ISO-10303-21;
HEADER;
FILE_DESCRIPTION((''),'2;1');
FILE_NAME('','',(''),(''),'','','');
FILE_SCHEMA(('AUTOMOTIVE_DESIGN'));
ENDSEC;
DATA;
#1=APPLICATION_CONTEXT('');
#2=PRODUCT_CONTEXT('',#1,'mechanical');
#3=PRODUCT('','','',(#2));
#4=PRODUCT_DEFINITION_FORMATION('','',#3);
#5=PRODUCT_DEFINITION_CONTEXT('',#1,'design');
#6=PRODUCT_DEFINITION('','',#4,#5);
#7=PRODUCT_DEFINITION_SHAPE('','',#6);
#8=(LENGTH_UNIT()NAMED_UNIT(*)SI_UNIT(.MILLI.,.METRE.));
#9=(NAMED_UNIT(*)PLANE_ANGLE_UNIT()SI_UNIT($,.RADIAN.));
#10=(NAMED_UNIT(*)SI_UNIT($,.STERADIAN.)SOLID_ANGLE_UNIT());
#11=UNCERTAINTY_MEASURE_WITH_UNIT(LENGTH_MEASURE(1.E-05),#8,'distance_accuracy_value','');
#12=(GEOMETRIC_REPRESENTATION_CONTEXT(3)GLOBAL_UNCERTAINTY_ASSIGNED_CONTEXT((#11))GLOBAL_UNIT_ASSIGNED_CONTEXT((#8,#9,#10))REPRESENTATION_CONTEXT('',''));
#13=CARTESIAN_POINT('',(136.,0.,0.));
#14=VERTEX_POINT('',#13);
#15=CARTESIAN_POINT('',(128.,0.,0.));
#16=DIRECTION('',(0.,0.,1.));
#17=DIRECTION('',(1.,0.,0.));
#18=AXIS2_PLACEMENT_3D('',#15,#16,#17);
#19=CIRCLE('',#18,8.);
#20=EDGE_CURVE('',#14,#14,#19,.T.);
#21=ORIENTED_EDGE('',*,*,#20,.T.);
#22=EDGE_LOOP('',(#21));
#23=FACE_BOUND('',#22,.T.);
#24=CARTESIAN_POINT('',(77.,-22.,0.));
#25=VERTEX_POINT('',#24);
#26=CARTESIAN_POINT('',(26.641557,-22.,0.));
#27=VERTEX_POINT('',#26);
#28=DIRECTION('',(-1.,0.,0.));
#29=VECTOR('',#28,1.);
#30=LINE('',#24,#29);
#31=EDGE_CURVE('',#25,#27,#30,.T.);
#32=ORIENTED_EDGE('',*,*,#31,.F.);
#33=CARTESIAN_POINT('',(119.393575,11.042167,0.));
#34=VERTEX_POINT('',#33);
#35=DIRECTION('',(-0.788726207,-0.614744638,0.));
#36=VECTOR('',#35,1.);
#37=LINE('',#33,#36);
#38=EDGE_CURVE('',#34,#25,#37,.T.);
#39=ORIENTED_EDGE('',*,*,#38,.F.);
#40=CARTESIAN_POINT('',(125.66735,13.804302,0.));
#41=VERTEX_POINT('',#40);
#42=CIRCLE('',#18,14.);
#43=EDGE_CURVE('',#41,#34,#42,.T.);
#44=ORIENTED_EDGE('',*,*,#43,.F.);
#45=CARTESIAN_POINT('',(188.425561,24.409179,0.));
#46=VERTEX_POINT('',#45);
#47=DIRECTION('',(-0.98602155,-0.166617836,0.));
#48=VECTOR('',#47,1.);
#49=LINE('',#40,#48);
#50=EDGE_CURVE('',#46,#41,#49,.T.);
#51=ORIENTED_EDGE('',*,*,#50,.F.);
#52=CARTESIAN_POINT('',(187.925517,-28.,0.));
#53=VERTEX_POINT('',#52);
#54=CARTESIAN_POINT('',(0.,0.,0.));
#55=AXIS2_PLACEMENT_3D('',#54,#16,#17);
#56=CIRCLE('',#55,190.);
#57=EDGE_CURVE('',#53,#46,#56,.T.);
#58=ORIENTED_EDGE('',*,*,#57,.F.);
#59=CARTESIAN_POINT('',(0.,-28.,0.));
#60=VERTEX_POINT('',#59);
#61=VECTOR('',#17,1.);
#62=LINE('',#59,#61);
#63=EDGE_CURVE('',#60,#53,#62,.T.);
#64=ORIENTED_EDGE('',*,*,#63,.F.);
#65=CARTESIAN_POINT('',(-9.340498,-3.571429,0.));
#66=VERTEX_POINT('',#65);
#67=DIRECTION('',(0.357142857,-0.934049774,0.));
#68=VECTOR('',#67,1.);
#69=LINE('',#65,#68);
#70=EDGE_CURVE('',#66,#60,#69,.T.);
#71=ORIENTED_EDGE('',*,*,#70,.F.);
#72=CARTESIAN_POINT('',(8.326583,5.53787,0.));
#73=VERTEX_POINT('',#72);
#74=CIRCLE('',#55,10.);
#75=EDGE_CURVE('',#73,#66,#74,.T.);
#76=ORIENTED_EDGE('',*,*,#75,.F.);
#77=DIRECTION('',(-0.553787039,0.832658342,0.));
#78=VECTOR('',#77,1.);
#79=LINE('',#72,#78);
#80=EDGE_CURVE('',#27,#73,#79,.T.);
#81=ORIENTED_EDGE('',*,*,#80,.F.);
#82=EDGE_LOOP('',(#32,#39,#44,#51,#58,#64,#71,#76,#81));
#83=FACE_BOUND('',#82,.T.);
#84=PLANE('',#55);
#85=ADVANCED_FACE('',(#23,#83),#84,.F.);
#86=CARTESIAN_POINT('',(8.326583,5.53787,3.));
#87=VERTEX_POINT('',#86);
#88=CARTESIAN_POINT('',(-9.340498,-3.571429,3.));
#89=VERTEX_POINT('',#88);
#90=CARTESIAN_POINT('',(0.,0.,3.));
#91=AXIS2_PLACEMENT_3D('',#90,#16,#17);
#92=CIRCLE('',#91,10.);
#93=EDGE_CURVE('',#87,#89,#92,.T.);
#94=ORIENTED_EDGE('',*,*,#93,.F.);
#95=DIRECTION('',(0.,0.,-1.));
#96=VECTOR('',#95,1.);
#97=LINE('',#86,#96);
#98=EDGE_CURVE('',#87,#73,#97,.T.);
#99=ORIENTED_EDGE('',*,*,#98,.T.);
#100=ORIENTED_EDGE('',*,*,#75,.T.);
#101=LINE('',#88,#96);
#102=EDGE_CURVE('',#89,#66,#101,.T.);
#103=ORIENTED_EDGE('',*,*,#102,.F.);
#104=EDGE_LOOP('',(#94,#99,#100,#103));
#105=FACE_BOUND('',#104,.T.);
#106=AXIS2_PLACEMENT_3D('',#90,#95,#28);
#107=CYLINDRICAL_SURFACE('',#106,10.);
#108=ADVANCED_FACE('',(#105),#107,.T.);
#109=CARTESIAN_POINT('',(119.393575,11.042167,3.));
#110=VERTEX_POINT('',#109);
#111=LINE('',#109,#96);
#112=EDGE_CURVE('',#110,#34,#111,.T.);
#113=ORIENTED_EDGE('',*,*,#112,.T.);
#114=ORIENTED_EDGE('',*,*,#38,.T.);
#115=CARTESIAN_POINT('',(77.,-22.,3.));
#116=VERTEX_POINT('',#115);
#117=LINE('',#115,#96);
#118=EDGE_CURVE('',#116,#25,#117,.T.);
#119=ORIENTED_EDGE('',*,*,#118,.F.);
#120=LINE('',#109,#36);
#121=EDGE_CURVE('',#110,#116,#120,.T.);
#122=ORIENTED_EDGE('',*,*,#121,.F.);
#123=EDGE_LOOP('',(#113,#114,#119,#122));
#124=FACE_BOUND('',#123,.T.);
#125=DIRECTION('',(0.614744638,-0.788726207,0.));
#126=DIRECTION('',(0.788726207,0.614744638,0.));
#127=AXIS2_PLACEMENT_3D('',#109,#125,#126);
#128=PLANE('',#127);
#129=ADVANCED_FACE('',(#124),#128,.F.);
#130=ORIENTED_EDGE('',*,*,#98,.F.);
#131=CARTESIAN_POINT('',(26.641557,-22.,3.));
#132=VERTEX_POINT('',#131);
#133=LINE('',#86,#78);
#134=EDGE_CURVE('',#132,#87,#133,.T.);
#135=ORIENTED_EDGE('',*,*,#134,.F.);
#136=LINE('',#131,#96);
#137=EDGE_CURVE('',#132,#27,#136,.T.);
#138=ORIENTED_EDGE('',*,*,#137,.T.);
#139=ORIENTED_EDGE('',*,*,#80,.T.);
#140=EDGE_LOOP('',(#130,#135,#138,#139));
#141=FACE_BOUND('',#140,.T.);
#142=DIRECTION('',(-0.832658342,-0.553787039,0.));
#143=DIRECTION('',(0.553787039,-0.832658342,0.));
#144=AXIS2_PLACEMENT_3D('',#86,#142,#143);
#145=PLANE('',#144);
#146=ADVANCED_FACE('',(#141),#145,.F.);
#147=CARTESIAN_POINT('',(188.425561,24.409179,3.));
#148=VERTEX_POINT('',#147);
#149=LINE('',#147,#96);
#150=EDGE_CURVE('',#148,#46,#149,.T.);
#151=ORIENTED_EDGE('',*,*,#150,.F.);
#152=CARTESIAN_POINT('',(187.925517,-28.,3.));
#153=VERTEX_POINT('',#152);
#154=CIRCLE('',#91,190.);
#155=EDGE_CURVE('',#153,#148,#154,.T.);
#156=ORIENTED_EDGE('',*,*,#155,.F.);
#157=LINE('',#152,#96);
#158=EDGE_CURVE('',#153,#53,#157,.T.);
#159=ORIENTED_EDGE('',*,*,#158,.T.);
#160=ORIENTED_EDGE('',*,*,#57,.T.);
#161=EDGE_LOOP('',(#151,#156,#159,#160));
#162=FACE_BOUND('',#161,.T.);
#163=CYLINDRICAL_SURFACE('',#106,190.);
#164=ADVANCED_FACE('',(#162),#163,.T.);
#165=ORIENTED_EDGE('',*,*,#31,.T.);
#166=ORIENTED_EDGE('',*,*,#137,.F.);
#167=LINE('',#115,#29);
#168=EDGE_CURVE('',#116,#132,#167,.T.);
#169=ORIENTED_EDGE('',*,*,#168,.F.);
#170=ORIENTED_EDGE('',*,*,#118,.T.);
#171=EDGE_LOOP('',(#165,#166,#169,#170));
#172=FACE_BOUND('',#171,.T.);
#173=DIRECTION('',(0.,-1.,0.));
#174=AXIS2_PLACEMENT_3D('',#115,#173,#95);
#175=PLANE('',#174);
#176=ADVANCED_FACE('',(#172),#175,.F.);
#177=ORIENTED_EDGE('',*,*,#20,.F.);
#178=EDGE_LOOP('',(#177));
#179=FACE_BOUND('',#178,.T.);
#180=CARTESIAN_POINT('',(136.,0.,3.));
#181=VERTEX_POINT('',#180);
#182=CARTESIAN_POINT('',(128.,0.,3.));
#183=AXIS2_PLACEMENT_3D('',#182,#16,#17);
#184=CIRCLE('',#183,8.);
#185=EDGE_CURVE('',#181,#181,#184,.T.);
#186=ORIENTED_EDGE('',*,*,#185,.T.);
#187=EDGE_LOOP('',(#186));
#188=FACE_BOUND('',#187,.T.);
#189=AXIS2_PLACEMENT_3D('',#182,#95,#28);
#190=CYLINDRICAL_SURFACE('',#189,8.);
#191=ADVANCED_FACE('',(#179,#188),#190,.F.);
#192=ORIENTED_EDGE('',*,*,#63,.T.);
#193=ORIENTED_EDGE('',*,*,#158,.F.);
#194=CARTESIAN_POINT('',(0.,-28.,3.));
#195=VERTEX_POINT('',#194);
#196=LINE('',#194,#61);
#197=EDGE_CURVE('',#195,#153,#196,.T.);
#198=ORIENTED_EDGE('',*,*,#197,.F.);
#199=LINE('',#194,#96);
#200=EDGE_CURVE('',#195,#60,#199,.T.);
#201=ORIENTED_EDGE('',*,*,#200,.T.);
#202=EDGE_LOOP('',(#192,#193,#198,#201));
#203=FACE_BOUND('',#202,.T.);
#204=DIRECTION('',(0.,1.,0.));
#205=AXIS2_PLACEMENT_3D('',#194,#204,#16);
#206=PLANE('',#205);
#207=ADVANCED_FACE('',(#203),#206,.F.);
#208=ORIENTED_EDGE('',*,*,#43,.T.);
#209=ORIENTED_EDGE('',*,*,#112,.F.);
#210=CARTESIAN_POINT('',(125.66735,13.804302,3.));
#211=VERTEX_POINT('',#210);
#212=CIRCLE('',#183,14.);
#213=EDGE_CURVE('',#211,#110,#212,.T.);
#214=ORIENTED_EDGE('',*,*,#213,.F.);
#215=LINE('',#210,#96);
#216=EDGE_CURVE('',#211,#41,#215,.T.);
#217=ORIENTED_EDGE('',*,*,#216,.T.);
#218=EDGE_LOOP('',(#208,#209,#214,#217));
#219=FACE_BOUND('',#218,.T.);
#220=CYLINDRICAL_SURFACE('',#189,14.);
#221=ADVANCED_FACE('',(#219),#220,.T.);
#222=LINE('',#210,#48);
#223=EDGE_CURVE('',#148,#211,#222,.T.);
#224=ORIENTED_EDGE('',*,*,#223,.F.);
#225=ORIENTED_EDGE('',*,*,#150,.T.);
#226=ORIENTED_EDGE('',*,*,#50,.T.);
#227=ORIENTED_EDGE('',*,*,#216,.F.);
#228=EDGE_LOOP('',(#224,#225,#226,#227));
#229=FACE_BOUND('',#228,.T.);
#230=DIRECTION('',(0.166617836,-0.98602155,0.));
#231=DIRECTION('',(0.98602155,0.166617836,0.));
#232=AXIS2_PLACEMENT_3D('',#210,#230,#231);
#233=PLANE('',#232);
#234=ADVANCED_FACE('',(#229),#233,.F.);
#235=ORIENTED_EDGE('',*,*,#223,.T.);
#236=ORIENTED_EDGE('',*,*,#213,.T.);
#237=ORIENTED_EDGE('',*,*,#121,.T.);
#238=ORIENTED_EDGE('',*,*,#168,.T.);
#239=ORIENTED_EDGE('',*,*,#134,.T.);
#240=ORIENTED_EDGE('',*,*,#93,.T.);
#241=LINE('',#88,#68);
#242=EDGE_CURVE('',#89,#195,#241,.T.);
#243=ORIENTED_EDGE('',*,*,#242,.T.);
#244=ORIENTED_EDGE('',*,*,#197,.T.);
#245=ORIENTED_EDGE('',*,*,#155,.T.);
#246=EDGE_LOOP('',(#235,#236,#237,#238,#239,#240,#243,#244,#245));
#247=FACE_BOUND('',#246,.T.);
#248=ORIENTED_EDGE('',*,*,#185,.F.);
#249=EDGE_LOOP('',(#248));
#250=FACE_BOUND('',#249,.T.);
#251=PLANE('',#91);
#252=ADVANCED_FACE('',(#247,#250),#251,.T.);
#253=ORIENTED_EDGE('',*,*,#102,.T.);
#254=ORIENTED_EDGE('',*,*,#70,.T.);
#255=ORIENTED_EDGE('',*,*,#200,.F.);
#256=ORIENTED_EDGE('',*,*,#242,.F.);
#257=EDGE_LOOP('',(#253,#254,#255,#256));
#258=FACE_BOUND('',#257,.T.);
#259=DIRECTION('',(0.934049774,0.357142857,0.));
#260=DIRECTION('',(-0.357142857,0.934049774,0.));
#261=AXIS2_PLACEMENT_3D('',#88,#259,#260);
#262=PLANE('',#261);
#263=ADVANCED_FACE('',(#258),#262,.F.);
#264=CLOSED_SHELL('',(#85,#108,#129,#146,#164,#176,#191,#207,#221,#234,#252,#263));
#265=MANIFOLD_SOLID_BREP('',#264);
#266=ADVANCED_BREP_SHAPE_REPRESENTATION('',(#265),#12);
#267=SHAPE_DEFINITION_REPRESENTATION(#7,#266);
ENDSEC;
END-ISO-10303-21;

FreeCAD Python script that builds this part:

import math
import FreeCAD as App
import Part
import Sketcher
from FreeCAD import Vector

doc = App.newDocument("Part")
body = doc.addObject("PartDesign::Body", "Body")

# Sketch on XY plane
sketch1 = body.newObject("Sketcher::SketchObject", "Sketch")
sketch1.AttachmentSupport = (doc.getObject("XY_Plane"), [""])
sketch1.MapMode = "FlatFace"
sketch1.addGeometry([
    Part.LineSegment(Vector(-9, -4, 0), Vector(0, -28, 0)),  # 0
    Part.LineSegment(Vector(0, -28, 0), Vector(188, -28, 0)),  # 1
    Part.ArcOfCircle(Part.Circle(Vector(0, 0, 0), Vector(0, 0, 1), 190), math.radians(-8.47), math.radians(7.38)),  # 2
    Part.LineSegment(Vector(188, 24, 0), Vector(126, 14, 0)),  # 3
    Part.ArcOfCircle(Part.Circle(Vector(128, 0, 0), Vector(0, 0, 1), 14), math.radians(100), math.radians(128)),  # 4
    Part.LineSegment(Vector(119, 11, 0), Vector(77, -22, 0)),  # 5
    Part.LineSegment(Vector(77, -22, 0), Vector(27, -22, 0)),  # 6
    Part.LineSegment(Vector(27, -22, 0), Vector(8, 6, 0)),  # 7
    Part.ArcOfCircle(Part.Circle(Vector(0, 0, 0), Vector(0, 0, 1), 10), math.radians(34), math.radians(201)),  # 8
    Part.Circle(Vector(128, 0, 0), Vector(0, 0, 1), 8),  # 9
], False)
sketch1.addConstraint([
    Sketcher.Constraint("Coincident", 0, 2, 1, 1),
    Sketcher.Constraint("Coincident", 1, 2, 2, 1),
    Sketcher.Constraint("Coincident", 2, 2, 3, 1),
    Sketcher.Constraint("Tangent", 3, 2, 4, 1),
    Sketcher.Constraint("Tangent", 4, 2, 5, 1),
    Sketcher.Constraint("Coincident", 5, 2, 6, 1),
    Sketcher.Constraint("Coincident", 6, 2, 7, 1),
    Sketcher.Constraint("Tangent", 7, 2, 8, 1),
    Sketcher.Constraint("Tangent", 8, 2, 0, 1),
    Sketcher.Constraint("Horizontal", 1),
    Sketcher.Constraint("Horizontal", 6),
    Sketcher.Constraint("Coincident", 2, 3, -1, 1),
    Sketcher.Constraint("Coincident", 8, 3, -1, 1),
    Sketcher.Constraint("Coincident", 9, 3, 4, 3),
    Sketcher.Constraint("PointOnObject", 4, 3, -1),
    Sketcher.Constraint("PointOnObject", 0, 2, -2),
    Sketcher.Constraint("Diameter", 9, 16.0),
    Sketcher.Constraint("Radius", 2, 190.0),
    Sketcher.Constraint("Radius", 4, 14.0),
    Sketcher.Constraint("Radius", 8, 10.0),
    Sketcher.Constraint("DistanceX", -1, 1, 4, 3, 128.0),
    Sketcher.Constraint("DistanceY", 0, 2, -1, 1, 28.0),
    Sketcher.Constraint("DistanceX", -1, 1, 5, 2, 77.0),
    Sketcher.Constraint("DistanceY", 5, 2, -1, 1, 22.0),
    Sketcher.Constraint("DistanceY", -1, 1, 3, 2, 13.804302),
    Sketcher.Constraint("DistanceY", 8, 2, 7, 2, 9.109299),
])
pad1 = body.newObject("PartDesign::Pad", "Pad")
pad1.Profile = sketch1
pad1.Length = 3

doc.recompute()
